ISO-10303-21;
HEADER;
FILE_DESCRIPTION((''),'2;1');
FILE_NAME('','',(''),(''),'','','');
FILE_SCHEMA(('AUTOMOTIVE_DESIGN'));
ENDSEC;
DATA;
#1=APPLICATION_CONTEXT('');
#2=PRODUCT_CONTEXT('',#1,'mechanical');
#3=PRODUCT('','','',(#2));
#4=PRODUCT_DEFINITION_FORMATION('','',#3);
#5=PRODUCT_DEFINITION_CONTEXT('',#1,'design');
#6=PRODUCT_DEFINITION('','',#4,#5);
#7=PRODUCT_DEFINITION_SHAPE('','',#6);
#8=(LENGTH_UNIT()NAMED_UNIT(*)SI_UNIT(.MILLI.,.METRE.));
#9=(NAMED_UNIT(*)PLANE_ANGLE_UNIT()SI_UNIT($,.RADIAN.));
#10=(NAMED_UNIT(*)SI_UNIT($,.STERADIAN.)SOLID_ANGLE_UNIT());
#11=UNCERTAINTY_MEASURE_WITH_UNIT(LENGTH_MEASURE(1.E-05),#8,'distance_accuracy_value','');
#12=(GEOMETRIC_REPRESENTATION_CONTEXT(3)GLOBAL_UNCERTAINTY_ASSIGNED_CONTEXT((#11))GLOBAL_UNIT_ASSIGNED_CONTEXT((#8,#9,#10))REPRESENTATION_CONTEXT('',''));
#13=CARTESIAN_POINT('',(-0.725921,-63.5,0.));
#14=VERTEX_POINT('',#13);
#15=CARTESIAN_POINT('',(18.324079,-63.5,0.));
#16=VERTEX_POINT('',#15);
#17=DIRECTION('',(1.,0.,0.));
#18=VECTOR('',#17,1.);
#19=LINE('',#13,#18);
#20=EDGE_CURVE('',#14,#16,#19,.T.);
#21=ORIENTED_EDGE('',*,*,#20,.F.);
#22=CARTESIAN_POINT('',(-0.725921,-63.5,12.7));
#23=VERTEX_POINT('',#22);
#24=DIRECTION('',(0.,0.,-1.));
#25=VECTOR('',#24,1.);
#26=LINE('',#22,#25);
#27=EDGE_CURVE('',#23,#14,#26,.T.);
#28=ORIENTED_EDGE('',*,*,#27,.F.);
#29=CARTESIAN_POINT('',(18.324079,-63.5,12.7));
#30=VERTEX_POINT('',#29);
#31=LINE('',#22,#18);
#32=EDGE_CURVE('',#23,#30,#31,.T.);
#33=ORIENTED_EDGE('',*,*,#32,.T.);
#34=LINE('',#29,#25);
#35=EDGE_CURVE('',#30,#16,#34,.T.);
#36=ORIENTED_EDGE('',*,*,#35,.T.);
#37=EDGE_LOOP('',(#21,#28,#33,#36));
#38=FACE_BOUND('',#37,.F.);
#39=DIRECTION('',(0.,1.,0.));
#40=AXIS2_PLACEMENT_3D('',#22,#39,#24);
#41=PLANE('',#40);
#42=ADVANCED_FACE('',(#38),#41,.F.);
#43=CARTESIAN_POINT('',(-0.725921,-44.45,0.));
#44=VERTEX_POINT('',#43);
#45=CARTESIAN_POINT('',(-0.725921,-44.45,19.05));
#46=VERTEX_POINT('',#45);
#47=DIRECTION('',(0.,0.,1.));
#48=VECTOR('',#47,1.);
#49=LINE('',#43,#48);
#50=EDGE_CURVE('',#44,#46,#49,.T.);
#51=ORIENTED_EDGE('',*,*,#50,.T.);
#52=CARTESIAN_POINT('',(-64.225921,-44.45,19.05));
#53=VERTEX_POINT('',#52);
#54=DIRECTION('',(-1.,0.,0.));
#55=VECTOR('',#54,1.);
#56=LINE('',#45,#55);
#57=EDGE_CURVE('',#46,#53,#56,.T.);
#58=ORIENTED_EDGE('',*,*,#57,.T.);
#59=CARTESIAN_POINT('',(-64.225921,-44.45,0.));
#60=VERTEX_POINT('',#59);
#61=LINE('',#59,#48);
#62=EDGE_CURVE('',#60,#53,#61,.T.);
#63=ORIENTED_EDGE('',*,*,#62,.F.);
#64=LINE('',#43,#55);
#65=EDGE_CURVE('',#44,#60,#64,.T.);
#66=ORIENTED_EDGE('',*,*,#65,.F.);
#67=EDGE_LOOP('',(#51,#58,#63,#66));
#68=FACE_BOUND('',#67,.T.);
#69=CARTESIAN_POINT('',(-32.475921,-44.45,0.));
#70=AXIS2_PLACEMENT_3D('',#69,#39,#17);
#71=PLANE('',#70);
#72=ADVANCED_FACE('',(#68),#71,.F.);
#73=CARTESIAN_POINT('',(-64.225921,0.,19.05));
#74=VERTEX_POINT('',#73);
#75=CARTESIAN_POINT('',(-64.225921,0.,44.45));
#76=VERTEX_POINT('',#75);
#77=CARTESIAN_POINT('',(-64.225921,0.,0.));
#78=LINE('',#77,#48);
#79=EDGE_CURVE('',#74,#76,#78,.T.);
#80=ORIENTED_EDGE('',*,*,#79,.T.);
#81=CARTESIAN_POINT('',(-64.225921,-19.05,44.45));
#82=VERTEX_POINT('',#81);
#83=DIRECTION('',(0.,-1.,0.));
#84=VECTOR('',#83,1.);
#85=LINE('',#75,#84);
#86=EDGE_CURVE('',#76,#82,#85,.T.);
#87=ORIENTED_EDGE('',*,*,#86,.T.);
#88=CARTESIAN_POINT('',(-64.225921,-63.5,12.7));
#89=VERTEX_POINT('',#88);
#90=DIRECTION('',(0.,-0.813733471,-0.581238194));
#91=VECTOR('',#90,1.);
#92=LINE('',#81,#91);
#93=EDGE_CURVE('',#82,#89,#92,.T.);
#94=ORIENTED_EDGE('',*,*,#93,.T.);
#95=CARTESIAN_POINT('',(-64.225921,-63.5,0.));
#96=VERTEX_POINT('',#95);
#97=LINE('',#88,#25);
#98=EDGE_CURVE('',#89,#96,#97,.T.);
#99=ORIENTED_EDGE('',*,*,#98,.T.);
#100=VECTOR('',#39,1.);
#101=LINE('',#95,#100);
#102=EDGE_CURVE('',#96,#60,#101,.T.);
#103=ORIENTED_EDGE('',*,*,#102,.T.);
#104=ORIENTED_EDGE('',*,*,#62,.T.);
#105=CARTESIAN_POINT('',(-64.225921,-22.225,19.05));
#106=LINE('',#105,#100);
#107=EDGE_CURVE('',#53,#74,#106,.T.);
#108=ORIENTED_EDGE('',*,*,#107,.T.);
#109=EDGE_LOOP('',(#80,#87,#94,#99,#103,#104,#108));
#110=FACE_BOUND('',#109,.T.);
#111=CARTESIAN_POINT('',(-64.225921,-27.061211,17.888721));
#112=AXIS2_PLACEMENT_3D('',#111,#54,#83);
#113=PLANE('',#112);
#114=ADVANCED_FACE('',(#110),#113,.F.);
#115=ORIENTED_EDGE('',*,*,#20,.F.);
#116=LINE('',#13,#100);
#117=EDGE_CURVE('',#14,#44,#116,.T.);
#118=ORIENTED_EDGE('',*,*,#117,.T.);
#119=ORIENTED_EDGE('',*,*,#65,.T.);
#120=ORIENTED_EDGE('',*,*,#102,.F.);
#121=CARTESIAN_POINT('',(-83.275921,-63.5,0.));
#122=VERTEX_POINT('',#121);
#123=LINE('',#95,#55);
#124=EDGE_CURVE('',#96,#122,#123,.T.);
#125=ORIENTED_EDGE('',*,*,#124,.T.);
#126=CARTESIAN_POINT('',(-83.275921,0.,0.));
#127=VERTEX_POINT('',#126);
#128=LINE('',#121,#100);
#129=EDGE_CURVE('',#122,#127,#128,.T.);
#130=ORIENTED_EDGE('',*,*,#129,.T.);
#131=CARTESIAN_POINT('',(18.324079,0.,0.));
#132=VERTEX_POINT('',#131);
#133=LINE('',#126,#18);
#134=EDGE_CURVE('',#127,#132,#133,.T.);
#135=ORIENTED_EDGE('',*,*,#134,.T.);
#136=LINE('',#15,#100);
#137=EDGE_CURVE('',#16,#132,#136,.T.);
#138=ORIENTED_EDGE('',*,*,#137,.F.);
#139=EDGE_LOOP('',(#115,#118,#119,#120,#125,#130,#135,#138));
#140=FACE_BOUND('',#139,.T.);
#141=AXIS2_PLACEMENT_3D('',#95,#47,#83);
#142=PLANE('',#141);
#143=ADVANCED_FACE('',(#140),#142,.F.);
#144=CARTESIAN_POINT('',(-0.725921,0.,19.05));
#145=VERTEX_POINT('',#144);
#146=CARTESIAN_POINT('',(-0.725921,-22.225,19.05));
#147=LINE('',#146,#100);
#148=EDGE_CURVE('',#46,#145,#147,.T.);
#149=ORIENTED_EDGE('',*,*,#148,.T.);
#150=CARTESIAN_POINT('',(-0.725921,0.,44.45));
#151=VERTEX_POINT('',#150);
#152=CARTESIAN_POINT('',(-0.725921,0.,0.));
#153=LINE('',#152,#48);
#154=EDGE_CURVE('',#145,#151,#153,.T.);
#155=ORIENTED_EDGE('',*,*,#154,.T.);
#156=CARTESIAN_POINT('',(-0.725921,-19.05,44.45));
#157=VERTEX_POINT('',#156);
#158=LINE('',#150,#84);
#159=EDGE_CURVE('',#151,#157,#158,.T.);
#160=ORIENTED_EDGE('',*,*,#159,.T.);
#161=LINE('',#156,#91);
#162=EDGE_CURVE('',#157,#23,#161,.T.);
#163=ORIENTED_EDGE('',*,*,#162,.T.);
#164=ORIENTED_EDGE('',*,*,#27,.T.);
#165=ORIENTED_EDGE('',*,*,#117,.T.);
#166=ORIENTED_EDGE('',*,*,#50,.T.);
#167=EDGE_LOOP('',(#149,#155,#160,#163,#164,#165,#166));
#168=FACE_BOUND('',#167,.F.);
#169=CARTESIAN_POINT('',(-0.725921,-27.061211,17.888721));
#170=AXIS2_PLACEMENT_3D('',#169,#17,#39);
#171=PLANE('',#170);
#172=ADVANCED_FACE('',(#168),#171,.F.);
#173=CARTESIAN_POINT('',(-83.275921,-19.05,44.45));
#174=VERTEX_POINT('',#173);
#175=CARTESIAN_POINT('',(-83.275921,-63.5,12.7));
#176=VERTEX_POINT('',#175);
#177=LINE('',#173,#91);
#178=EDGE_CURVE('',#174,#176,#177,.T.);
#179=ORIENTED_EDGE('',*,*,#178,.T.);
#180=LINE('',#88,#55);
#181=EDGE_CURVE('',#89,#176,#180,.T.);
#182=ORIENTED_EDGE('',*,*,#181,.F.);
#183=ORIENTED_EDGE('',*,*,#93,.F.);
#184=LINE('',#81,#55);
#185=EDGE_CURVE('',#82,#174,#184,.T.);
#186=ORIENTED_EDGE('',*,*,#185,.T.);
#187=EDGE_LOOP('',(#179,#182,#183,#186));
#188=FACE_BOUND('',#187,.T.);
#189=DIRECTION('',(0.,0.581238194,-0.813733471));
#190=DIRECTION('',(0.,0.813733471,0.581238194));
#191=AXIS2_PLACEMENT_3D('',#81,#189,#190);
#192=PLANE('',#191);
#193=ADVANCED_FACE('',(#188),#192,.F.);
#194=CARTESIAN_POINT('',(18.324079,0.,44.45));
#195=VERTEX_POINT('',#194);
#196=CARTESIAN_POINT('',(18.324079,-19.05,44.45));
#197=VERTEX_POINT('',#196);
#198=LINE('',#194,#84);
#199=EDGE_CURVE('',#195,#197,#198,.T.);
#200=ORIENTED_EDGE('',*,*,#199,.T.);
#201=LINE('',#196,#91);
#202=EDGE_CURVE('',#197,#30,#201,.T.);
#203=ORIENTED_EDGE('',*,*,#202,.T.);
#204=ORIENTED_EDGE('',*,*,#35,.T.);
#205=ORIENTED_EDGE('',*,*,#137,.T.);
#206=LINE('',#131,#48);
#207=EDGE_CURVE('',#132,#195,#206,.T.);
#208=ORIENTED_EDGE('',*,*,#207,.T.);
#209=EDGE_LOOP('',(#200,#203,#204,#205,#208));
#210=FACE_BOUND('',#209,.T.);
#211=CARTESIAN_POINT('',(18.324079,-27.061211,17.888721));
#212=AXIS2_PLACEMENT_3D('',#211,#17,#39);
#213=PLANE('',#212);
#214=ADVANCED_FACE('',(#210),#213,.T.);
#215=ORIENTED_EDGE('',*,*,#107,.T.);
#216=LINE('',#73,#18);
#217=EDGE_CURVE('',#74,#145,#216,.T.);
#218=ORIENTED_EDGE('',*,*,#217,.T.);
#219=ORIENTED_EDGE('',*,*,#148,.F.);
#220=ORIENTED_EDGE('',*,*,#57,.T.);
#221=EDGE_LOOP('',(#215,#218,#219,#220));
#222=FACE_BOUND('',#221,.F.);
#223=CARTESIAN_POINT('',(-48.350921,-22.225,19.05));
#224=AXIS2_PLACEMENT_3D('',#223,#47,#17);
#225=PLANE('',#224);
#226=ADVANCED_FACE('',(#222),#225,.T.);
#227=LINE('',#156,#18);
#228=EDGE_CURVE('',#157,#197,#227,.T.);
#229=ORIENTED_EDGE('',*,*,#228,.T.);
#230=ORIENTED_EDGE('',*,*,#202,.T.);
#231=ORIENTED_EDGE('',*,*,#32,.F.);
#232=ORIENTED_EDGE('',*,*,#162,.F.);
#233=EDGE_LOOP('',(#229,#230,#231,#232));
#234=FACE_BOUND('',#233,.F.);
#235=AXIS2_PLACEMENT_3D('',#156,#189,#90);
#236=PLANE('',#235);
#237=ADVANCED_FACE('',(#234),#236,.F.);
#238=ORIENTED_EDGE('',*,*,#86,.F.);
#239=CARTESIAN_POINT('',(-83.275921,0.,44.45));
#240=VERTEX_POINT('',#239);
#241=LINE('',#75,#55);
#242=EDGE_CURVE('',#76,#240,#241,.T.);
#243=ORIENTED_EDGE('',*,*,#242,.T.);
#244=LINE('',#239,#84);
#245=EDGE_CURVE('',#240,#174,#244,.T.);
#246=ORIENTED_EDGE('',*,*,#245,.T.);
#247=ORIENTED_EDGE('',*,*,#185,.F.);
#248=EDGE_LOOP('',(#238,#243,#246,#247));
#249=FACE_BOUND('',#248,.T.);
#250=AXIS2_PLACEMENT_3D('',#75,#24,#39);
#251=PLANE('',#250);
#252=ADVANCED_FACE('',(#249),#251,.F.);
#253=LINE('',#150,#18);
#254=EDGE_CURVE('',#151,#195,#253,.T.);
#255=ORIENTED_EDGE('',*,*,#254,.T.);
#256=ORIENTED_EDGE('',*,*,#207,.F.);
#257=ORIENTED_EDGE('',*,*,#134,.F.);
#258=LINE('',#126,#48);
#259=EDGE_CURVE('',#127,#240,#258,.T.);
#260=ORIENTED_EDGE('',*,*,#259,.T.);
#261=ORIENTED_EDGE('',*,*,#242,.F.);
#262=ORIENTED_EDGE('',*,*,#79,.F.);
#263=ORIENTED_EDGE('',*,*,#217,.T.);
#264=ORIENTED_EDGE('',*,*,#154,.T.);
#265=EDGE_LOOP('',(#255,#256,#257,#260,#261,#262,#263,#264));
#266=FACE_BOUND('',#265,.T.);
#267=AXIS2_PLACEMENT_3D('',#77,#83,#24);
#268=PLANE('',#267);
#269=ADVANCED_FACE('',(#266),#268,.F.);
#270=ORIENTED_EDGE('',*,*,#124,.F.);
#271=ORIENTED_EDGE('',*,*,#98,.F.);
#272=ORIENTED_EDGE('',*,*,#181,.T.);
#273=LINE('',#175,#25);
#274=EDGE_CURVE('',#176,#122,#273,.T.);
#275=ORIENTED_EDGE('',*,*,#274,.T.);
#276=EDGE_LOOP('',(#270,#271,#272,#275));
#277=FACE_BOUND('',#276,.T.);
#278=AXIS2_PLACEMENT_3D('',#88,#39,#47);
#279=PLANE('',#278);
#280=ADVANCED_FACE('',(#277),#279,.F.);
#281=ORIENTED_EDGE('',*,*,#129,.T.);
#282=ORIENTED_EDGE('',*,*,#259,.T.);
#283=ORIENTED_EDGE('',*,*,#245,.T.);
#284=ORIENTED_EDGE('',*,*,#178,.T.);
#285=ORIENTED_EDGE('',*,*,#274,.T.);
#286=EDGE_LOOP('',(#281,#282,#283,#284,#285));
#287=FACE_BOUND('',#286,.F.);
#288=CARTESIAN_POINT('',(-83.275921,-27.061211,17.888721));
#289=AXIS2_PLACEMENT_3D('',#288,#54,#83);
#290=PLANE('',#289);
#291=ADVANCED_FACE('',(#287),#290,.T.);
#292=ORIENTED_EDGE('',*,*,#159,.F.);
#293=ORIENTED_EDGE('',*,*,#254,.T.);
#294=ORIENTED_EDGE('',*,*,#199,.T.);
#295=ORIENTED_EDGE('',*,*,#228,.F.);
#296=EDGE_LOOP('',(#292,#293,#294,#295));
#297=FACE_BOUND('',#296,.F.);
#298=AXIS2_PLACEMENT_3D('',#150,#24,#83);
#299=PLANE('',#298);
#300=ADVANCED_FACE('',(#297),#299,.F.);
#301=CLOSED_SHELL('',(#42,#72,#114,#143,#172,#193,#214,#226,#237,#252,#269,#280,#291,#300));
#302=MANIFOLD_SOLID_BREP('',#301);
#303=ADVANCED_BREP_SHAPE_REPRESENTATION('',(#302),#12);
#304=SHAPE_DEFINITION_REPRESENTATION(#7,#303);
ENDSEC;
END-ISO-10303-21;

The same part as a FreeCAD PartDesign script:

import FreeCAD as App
import Part
import Sketcher

V = App.Vector
Q = App.Units.Quantity


def add_polygon(sketch, points):
    """Adds a closed chain of lines whose ends are joined by coincident constraints."""
    first, n = sketch.GeometryCount, len(points)
    for a, b in zip(points, points[1:] + points[:1]):
        sketch.addGeometry(Part.LineSegment(App.Vector(*a, 0), App.Vector(*b, 0)), False)
    for i in range(n):
        sketch.addConstraint(Sketcher.Constraint("Coincident", first + i, 2, first + (i + 1) % n, 1))

doc = App.newDocument("Part")
params = doc.addObject("Spreadsheet::Sheet", "Params")
for row, (alias, value) in enumerate([
    ("sketch1_width", "1.25 in"),
    ("sketch1_height", "1.75 in"),
    ("pad1_length", "0.75 in"),
    ("sketch2_width", "2.5 in"),
    ("sketch2_height", "0.5 in"),
    ("sketch2_width2", "0.75 in"),
    ("sketch2_height2", "1.75 in"),
    ("pad2_length", "0.75 in"),
], start=1):
    params.set(f"A{row}", alias)
    params.set(f"B{row}", "=" + value)
    params.setAlias(f"B{row}", alias)

body = doc.addObject("PartDesign::Body", "Body")

sketch1 = body.newObject("Sketcher::SketchObject", "Sketch")
sketch1.AttachmentSupport = (doc.getObject("XY_Plane"), [""])
sketch1.MapMode = "FlatFace"
add_polygon(sketch1, [(-32, 0), (-32, -44), (-1, -44), (-1, 0)])
sketch1.addConstraint(Sketcher.Constraint("Vertical", 0))
sketch1.addConstraint(Sketcher.Constraint("Horizontal", 1))
sketch1.addConstraint(Sketcher.Constraint("Vertical", 2))
sketch1.addConstraint(Sketcher.Constraint("Horizontal", 3))
sketch1.addConstraint(Sketcher.Constraint("PointOnObject", 2, 2, -1))
sketch1.addConstraint(Sketcher.Constraint("DistanceX", 1, 1, 1, 2, Q("1.25 in")))
sketch1.addConstraint(Sketcher.Constraint("DistanceY", 0, 2, 0, 1, Q("1.75 in")))
sketch1.addConstraint(Sketcher.Constraint("DistanceX", 0, 2, -1, 1, Q("32.475921 mm")))
sketch1.setExpression("Constraints[9]", "Params.sketch1_width")
sketch1.setExpression("Constraints[10]", "Params.sketch1_height")
pad1 = body.newObject("PartDesign::Pad", "Pad")
pad1.Profile = sketch1
pad1.setExpression("Length", "Params.pad1_length")

sketch2 = body.newObject("Sketcher::SketchObject", "Sketch001")
sketch2.AttachmentSupport = (doc.getObject("YZ_Plane"), [""])
sketch2.MapMode = "FlatFace"
sketch2.AttachmentOffset = App.Placement(V(0, 0, -0.725921), App.Rotation())
add_polygon(sketch2, [(-64, 13), (-64, 0), (0, 0), (0, 44), (-19, 44)])
sketch2.addConstraint(Sketcher.Constraint("Vertical", 0))
sketch2.addConstraint(Sketcher.Constraint("Horizontal", 1))
sketch2.addConstraint(Sketcher.Constraint("Vertical", 2))
sketch2.addConstraint(Sketcher.Constraint("Horizontal", 3))
sketch2.addConstraint(Sketcher.Constraint("Coincident", 1, 2, -1, 1))
sketch2.addConstraint(Sketcher.Constraint("DistanceX", 1, 1, 1, 2, Q("2.5 in")))
sketch2.addConstraint(Sketcher.Constraint("DistanceY", 0, 2, 0, 1, Q("0.5 in")))
sketch2.addConstraint(Sketcher.Constraint("DistanceX", 3, 2, 3, 1, Q("0.75 in")))
sketch2.addConstraint(Sketcher.Constraint("DistanceY", 2, 1, 2, 2, Q("1.75 in")))
sketch2.setExpression("Constraints[10]", "Params.sketch2_width")
sketch2.setExpression("Constraints[11]", "Params.sketch2_height")
sketch2.setExpression("Constraints[12]", "Params.sketch2_width2")
sketch2.setExpression("Constraints[13]", "Params.sketch2_height2")
pad2 = body.newObject("PartDesign::Pad", "Pad001")
pad2.Profile = sketch2
pad2.setExpression("Length", "Params.pad2_length")
body2 = doc.addObject("PartDesign::Body", "Body001")
doc.recompute()

body2.BaseFeature = body
doc.recompute()

mirroring = doc.addObject("Part::Mirroring", "Mirroring")
mirroring.Source = body
mirroring.Base = V(-32.475921, -22.225, 9.525)
mirroring.Normal = V(-1, 0, 0)
body3 = doc.addObject("PartDesign::Body", "Body002")
body3.BaseFeature = mirroring
boolean = body2.newObject("PartDesign::Boolean", "Boolean")
boolean.Type = "Fuse"
boolean.addObjects([body3])
doc.recompute()
mirroring.Visibility = False

doc.recompute()
